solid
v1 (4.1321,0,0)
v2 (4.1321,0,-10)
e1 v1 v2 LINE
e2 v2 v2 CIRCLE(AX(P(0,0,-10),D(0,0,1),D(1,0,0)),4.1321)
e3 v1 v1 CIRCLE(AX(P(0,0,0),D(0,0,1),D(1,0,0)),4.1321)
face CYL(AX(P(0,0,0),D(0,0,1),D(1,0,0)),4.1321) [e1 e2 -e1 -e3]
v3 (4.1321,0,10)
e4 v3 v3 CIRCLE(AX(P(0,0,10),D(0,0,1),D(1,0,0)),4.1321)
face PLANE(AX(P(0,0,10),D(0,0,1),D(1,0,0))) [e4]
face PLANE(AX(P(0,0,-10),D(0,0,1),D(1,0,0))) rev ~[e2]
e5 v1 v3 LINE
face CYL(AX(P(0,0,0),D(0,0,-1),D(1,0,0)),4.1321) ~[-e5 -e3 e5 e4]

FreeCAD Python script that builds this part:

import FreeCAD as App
import Part
import Sketcher
from FreeCAD import Vector
Q = App.Units.Quantity

doc = App.newDocument("Part")
params = doc.addObject("Spreadsheet::Sheet", "Params")
for row, (alias, value) in enumerate([
    ("pad1_length", "20 mm"),
], start=1):
    params.set(f"A{row}", alias)
    params.set(f"B{row}", "=" + value)
    params.setAlias(f"B{row}", alias)

body = doc.addObject("PartDesign::Body", "Body")

sketch1 = doc.addObject("Sketcher::SketchObject", "Sketch")
body.addObject(sketch1)
sketch1.AttachmentSupport = (doc.XY_Plane, [""])
sketch1.MapMode = "FlatFace"
sketch1.addGeometry(Part.Circle(Vector(0, 0, 0), Vector(0, 0, 1), 4.1321), False)
sketch1.addConstraint(Sketcher.Constraint("Coincident", 0, 3, -1, 1))
sketch1.addConstraint(Sketcher.Constraint("Diameter", 0, Q("8.2642 mm")))
pad1 = doc.addObject("PartDesign::Pad", "Pad")
body.addObject(pad1)
pad1.Profile = sketch1
pad1.setExpression("Length", "Params.pad1_length")
pad1.Midplane = True

doc.recompute()
